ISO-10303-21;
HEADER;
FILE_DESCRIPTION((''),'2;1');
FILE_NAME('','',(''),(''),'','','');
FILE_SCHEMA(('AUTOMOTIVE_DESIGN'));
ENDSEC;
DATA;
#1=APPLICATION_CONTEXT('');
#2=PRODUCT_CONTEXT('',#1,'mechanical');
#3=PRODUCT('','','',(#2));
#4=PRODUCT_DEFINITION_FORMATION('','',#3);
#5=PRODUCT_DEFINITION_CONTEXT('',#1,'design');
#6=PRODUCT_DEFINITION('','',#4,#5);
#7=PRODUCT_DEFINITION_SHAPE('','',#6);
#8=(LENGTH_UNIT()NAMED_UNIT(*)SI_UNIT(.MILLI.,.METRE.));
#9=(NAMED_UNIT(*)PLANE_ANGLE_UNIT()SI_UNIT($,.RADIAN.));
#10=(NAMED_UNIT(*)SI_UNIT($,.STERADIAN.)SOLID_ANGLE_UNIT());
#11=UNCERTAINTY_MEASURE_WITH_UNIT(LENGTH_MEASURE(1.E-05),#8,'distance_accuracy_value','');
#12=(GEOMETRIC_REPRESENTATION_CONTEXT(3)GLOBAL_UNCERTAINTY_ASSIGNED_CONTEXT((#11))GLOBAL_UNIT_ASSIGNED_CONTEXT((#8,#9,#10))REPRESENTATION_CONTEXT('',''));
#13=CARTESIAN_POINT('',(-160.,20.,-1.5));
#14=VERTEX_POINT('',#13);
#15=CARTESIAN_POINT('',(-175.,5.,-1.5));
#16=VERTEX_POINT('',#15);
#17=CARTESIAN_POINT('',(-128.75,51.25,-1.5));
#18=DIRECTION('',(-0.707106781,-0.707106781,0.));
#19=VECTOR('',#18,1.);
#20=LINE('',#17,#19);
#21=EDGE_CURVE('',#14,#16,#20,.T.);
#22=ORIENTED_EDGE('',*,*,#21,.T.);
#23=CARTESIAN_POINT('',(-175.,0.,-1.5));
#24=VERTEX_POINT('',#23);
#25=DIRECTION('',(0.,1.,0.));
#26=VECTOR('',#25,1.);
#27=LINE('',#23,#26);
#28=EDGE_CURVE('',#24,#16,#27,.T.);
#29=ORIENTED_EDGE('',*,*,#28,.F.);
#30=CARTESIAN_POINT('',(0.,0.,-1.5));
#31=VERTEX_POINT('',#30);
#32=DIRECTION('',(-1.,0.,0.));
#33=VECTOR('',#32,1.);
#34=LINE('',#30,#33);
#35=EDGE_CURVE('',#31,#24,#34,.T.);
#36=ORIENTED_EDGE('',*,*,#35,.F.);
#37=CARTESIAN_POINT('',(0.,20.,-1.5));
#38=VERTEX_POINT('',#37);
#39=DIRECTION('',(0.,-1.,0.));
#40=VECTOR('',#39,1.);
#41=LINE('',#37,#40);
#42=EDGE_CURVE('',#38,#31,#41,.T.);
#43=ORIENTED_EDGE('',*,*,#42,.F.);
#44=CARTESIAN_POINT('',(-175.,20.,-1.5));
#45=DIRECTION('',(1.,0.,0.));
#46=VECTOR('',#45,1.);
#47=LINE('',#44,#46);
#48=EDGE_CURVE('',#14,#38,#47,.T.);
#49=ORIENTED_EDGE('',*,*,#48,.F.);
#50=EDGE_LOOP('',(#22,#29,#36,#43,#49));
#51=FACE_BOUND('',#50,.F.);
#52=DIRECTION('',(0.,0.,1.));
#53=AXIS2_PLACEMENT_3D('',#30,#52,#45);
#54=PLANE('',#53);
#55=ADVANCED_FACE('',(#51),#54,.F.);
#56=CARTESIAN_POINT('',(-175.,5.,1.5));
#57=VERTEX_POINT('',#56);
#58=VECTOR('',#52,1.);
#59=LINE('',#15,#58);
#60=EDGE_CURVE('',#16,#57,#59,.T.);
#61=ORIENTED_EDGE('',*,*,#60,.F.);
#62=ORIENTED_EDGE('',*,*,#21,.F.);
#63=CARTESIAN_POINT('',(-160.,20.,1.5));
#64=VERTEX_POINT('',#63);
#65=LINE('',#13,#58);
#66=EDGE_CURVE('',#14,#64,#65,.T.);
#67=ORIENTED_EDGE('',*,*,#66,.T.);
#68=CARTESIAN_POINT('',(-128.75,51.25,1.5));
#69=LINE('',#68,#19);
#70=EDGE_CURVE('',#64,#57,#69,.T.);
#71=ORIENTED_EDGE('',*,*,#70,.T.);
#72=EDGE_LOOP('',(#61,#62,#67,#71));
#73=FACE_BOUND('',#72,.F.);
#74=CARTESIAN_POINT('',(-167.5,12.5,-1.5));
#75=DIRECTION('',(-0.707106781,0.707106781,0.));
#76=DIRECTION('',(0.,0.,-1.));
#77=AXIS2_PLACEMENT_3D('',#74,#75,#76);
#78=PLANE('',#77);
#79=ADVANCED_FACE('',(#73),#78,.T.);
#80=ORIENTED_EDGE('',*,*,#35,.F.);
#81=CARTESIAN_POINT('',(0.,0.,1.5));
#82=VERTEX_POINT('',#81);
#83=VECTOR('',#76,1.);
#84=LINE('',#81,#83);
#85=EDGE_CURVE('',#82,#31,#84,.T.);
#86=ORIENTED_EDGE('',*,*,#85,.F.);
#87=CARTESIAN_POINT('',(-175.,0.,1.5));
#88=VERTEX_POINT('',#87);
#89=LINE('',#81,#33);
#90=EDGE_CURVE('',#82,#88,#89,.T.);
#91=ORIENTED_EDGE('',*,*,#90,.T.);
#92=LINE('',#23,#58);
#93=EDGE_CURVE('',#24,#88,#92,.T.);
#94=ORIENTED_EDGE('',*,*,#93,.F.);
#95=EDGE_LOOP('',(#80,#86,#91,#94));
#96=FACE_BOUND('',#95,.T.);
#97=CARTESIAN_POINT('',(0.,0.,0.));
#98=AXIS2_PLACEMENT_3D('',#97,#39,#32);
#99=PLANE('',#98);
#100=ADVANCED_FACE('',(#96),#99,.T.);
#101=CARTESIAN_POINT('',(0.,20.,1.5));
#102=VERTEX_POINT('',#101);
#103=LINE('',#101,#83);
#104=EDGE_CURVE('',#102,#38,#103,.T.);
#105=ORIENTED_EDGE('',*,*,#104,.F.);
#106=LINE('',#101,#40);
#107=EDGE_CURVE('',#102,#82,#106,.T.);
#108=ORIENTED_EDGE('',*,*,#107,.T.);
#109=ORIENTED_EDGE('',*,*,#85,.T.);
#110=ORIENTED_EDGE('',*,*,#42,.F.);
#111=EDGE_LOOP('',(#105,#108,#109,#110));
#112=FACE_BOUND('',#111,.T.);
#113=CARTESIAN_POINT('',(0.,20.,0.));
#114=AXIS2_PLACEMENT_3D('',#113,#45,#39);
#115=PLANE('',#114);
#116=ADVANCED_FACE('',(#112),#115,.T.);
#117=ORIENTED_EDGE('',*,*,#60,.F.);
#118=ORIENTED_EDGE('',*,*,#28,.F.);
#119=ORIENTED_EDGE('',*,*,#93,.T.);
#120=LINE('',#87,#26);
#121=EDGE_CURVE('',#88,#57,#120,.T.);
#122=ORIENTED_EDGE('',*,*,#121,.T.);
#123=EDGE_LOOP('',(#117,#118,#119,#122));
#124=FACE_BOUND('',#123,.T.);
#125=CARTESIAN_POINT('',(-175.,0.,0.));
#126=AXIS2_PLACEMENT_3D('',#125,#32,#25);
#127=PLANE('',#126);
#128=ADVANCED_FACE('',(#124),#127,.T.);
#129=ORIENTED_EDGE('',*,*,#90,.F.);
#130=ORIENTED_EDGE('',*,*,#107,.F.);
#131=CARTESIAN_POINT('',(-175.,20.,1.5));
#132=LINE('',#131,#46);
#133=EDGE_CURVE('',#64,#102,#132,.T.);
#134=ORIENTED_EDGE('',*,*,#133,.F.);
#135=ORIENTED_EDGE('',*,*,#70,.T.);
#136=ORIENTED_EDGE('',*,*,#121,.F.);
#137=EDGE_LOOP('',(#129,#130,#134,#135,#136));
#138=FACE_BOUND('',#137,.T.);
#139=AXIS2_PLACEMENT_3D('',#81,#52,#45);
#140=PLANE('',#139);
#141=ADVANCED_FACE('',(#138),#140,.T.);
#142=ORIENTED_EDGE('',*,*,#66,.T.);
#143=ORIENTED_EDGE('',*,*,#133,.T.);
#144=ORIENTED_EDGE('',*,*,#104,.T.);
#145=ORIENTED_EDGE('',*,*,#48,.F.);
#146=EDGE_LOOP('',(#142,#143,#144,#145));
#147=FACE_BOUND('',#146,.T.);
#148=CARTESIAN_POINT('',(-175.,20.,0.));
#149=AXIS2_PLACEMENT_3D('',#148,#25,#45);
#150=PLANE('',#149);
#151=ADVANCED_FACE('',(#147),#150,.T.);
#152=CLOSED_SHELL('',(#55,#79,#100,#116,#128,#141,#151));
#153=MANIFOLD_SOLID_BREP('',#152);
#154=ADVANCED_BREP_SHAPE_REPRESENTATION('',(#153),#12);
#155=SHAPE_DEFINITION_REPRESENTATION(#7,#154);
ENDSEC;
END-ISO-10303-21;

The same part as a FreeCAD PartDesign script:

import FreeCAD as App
import Part
import Sketcher
from FreeCAD import Vector
Q = App.Units.Quantity


def edges_at(feature, points):
    """Names of the edges that pass closest to the given points."""
    edges = feature.Shape.Edges
    near = lambda p: min(range(len(edges)), key=lambda i: edges[i].distToShape(Part.Vertex(*p))[0])
    return sorted({f"Edge{near(p) + 1}" for p in points})


def add_polygon(sketch, points):
    """Adds a closed chain of lines whose ends are joined by coincident constraints."""
    first, n = sketch.GeometryCount, len(points)
    for a, b in zip(points, points[1:] + points[:1]):
        sketch.addGeometry(Part.LineSegment(App.Vector(*a, 0), App.Vector(*b, 0)), False)
    for i in range(n):
        sketch.addConstraint(Sketcher.Constraint("Coincident", first + i, 2, first + (i + 1) % n, 1))

doc = App.newDocument("Part")
body = doc.addObject("PartDesign::Body", "Body")

sketch1 = body.newObject("Sketcher::SketchObject", "Sketch")
sketch1.AttachmentSupport = (doc.getObject("XY_Plane"), [""])
sketch1.MapMode = "FlatFace"
add_polygon(sketch1, [(0, 20), (-175, 20), (-175, 0), (0, 0)])
sketch1.addConstraint(Sketcher.Constraint("Horizontal", 0))
sketch1.addConstraint(Sketcher.Constraint("Vertical", 1))
sketch1.addConstraint(Sketcher.Constraint("Horizontal", 2))
sketch1.addConstraint(Sketcher.Constraint("Vertical", 3))
sketch1.addConstraint(Sketcher.Constraint("Coincident", 2, 2, -1, 1))
sketch1.addConstraint(Sketcher.Constraint("DistanceX", 0, 2, 0, 1, Q("175 mm")))
sketch1.addConstraint(Sketcher.Constraint("DistanceY", 1, 2, 1, 1, Q("20 mm")))
pad1 = body.newObject("PartDesign::Pad", "Pad")
pad1.Profile = sketch1
pad1.Length = 3
pad1.Midplane = True
doc.recompute()

chamfer = body.newObject("PartDesign::Chamfer", "Chamfer")
chamfer.Base = (pad1, edges_at(pad1, [(-175, 20, 0)]))
chamfer.Size = 15

doc.recompute()
